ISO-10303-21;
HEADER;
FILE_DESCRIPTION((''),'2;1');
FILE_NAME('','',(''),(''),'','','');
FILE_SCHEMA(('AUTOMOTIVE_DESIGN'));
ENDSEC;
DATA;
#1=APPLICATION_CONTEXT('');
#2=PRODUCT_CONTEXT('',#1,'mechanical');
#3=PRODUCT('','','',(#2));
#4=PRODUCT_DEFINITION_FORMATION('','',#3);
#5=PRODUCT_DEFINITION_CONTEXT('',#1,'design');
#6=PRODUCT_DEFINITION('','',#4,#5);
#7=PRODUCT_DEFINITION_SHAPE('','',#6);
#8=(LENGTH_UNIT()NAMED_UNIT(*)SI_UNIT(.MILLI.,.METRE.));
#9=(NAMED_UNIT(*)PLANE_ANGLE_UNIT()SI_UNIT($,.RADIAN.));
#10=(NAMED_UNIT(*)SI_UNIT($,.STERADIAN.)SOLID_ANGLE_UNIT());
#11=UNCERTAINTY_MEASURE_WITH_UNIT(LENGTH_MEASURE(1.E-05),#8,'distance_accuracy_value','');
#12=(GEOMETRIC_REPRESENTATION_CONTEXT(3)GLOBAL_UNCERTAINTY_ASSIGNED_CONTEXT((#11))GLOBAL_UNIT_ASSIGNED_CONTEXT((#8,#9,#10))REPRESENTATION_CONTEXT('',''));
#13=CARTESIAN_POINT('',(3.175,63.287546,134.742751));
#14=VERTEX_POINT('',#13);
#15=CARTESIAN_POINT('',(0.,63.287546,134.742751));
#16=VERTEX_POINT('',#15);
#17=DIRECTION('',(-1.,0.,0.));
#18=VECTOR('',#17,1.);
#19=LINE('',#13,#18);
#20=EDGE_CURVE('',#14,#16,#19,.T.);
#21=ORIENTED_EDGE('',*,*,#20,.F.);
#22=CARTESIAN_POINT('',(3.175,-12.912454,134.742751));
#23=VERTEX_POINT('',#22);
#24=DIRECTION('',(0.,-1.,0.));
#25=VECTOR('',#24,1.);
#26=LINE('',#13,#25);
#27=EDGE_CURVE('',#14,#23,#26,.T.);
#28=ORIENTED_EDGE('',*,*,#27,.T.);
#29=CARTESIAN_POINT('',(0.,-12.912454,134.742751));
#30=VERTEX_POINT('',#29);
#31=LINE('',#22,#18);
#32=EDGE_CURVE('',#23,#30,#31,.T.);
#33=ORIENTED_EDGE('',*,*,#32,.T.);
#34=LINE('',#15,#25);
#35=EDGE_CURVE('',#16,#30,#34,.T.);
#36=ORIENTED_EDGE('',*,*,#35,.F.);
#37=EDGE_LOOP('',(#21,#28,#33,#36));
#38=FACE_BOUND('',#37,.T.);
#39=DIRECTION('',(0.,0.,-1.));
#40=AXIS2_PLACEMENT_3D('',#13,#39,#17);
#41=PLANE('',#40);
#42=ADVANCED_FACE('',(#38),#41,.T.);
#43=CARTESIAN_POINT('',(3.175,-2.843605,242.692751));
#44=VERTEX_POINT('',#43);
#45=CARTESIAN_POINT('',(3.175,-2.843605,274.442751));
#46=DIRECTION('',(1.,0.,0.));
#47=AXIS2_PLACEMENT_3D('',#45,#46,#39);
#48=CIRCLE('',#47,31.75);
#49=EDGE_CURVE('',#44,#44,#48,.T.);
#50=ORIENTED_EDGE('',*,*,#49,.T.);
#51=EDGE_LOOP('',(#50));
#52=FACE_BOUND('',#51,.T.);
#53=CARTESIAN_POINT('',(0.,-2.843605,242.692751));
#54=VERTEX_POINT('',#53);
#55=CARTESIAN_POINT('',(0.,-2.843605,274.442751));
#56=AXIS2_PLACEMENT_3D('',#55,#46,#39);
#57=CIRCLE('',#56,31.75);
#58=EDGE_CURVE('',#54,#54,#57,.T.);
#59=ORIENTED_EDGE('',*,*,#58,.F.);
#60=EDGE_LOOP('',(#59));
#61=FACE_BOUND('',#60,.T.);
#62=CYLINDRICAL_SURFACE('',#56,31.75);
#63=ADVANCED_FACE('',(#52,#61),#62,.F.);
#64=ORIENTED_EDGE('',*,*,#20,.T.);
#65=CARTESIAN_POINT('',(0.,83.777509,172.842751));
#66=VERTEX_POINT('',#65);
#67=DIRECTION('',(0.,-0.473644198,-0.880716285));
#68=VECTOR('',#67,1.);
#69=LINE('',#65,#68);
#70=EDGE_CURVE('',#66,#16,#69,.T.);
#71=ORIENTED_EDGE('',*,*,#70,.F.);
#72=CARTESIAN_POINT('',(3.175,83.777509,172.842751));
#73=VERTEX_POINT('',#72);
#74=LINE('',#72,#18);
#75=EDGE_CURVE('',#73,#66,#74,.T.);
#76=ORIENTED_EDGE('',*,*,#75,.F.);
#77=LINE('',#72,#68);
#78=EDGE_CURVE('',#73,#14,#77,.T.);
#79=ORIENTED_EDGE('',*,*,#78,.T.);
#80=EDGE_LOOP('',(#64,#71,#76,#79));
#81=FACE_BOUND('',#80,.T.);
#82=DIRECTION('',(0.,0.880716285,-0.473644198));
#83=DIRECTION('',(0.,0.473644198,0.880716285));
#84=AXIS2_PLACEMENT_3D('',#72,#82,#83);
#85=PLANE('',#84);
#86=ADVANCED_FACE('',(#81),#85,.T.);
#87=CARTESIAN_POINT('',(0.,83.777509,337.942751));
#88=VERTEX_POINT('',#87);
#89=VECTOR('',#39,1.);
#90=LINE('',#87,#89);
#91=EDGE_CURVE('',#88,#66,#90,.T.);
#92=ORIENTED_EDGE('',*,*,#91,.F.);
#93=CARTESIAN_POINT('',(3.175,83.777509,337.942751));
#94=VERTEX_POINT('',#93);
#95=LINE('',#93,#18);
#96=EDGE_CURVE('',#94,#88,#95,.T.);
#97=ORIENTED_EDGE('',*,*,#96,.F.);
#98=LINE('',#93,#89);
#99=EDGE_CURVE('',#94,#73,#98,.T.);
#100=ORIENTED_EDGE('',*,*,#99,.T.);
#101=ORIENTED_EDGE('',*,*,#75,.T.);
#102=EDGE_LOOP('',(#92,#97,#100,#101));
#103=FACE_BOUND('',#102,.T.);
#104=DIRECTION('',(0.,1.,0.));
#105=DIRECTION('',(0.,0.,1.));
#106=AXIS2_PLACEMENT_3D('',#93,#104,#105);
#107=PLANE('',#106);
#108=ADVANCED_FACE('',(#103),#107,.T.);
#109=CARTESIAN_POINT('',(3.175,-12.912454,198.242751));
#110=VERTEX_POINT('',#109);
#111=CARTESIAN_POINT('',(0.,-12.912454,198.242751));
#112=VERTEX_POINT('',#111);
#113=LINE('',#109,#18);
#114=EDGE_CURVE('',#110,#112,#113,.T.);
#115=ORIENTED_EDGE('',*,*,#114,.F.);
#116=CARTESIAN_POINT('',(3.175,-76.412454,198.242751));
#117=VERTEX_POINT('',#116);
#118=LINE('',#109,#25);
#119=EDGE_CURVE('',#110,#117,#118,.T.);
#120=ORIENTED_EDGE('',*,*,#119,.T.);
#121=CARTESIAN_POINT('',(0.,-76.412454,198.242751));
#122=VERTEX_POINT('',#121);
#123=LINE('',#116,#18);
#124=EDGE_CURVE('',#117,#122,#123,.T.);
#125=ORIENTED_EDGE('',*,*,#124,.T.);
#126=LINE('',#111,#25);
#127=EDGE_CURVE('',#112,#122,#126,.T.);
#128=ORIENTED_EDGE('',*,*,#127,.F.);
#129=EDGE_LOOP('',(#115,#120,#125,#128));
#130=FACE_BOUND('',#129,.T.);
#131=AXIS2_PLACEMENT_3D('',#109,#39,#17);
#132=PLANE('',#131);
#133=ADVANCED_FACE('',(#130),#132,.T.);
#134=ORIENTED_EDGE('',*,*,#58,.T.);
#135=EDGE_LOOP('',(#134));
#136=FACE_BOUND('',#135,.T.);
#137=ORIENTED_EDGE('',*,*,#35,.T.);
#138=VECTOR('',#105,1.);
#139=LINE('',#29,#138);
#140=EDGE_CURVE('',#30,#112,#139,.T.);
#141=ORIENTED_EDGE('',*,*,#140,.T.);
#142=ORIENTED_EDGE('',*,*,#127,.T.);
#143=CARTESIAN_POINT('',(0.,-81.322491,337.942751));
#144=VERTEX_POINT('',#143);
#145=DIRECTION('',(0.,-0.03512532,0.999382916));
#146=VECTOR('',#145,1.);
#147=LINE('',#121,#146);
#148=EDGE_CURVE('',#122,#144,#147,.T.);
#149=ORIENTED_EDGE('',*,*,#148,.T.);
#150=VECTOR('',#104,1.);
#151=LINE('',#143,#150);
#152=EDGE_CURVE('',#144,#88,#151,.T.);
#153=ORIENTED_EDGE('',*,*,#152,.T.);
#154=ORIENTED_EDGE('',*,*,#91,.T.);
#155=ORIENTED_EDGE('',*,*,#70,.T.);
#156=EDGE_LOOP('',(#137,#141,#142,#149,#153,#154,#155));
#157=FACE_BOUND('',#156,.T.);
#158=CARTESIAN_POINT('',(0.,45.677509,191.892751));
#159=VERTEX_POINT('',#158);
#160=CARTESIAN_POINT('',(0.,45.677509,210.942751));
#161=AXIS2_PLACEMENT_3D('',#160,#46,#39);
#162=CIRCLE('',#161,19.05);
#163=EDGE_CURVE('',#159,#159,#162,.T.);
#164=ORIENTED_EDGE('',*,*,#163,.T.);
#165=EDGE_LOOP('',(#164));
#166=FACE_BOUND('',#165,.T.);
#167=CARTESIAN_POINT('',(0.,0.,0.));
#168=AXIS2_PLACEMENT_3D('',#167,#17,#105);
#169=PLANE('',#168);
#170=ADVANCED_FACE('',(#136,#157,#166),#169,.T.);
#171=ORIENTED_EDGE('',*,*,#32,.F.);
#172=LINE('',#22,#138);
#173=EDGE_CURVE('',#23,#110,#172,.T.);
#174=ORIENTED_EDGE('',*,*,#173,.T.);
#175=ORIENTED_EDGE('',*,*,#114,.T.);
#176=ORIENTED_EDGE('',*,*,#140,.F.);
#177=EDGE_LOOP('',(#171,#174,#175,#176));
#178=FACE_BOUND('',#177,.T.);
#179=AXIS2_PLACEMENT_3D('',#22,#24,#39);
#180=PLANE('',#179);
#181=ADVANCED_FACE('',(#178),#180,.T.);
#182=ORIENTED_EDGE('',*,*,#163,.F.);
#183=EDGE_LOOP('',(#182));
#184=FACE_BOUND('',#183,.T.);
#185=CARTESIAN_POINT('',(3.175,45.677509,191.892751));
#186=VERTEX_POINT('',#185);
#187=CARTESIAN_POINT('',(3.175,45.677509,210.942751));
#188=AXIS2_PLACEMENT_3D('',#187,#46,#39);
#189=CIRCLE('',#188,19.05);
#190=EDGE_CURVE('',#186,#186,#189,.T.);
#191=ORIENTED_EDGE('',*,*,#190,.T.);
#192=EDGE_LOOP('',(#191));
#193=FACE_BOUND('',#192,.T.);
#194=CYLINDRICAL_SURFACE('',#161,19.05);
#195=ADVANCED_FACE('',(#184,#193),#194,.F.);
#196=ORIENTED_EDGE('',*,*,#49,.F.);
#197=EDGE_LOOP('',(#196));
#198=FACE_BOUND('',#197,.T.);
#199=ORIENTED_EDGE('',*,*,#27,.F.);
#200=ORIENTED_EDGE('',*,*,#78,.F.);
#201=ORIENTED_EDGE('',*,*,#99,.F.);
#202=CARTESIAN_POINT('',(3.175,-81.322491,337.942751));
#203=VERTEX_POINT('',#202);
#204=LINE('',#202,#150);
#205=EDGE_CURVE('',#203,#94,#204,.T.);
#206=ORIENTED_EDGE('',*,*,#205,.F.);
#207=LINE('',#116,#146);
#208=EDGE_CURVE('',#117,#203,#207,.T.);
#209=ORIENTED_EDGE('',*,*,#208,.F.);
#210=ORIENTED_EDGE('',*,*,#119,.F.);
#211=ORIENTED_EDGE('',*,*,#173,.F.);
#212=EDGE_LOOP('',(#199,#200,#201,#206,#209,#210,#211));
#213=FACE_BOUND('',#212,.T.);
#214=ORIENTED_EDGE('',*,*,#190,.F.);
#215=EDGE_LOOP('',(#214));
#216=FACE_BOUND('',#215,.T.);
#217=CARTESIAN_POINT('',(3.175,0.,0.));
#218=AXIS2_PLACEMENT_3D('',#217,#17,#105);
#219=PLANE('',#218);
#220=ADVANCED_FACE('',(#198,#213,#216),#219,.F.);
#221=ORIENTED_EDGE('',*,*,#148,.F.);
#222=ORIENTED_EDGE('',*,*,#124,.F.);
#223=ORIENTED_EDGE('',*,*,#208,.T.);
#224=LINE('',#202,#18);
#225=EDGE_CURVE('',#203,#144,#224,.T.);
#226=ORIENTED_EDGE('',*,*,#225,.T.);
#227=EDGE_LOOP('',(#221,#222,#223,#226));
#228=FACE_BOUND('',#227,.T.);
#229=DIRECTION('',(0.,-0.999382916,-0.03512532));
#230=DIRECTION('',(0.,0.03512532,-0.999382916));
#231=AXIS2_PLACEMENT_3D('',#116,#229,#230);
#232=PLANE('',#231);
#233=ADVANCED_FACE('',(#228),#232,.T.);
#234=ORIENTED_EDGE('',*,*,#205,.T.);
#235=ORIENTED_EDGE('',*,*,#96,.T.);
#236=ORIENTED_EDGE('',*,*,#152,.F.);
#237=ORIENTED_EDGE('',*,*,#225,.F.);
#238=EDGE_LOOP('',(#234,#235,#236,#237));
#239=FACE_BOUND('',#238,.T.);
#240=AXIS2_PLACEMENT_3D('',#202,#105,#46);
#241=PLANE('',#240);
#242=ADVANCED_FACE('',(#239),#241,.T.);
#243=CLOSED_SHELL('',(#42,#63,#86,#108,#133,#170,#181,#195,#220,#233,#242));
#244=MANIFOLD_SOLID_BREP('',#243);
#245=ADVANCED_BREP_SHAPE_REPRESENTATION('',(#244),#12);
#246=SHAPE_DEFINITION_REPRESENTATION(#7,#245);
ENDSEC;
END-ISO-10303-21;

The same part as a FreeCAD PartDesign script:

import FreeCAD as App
import Part
import Sketcher
Q = App.Units.Quantity

doc = App.newDocument("Part")
body = doc.addObject("PartDesign::Body", "Body")

sketch1 = body.newObject("Sketcher::SketchObject", "Sketch")
sketch1.AttachmentSupport = (doc.getObject("YZ_Plane"), [""])
sketch1.MapMode = "FlatFace"
sketch1.addGeometry(Part.LineSegment(App.Vector(84, 173, 0), App.Vector(84, 338, 0)), False)
sketch1.addGeometry(Part.LineSegment(App.Vector(84, 338, 0), App.Vector(-81, 338, 0)), False)
sketch1.addGeometry(Part.LineSegment(App.Vector(-81, 338, 0), App.Vector(-76, 198, 0)), False)
sketch1.addGeometry(Part.LineSegment(App.Vector(-76, 198, 0), App.Vector(-13, 198, 0)), False)
sketch1.addGeometry(Part.LineSegment(App.Vector(-13, 198, 0), App.Vector(-13, 135, 0)), False)
sketch1.addGeometry(Part.LineSegment(App.Vector(-13, 135, 0), App.Vector(63, 135, 0)), False)
sketch1.addGeometry(Part.LineSegment(App.Vector(63, 135, 0), App.Vector(84, 173, 0)), False)
sketch1.addConstraint(Sketcher.Constraint("Coincident", 0, 2, 1, 1))
sketch1.addConstraint(Sketcher.Constraint("Coincident", 1, 2, 2, 1))
sketch1.addConstraint(Sketcher.Constraint("Coincident", 2, 2, 3, 1))
sketch1.addConstraint(Sketcher.Constraint("Coincident", 3, 2, 4, 1))
sketch1.addConstraint(Sketcher.Constraint("Coincident", 4, 2, 5, 1))
sketch1.addConstraint(Sketcher.Constraint("Coincident", 5, 2, 6, 1))
sketch1.addConstraint(Sketcher.Constraint("Coincident", 6, 2, 0, 1))
sketch1.addConstraint(Sketcher.Constraint("Vertical", 0))
sketch1.addConstraint(Sketcher.Constraint("Horizontal", 1))
sketch1.addConstraint(Sketcher.Constraint("Horizontal", 3))
sketch1.addConstraint(Sketcher.Constraint("Vertical", 4))
sketch1.addConstraint(Sketcher.Constraint("Horizontal", 5))
sketch1.addConstraint(Sketcher.Constraint("Equal", 1, 0))
sketch1.addConstraint(Sketcher.Constraint("Equal", 3, 4))
sketch1.addConstraint(Sketcher.Constraint("DistanceX", 5, 1, 5, 2, Q("3 in")))
sketch1.addConstraint(Sketcher.Constraint("DistanceX", 1, 2, 1, 1, Q("6.5 in")))
sketch1.addConstraint(Sketcher.Constraint("DistanceX", 3, 1, 3, 2, Q("2.5 in")))
sketch1.addConstraint(Sketcher.Constraint("DistanceY", 4, 2, 1, 2, Q("8 in")))
sketch1.addConstraint(Sketcher.Constraint("Distance", 2, 139.78626))
sketch1.addConstraint(Sketcher.Constraint("DistanceX", -1, 1, 0, 2, 83.777509))
sketch1.addConstraint(Sketcher.Constraint("DistanceY", -1, 1, 0, 2, 337.942751))
pad1 = body.newObject("PartDesign::Pad", "Pad")
pad1.Profile = sketch1
pad1.Length = Q("0.125 in")

sketch2 = body.newObject("Sketcher::SketchObject", "Sketch001")
sketch2.AttachmentSupport = (doc.getObject("YZ_Plane"), [""])
sketch2.MapMode = "FlatFace"
sketch2.AttachmentOffset = App.Placement(App.Vector(0, 0, 0.125 * 25.4), App.Rotation())
sketch2.addGeometry(Part.Circle(App.Vector(-3, 274, 0), App.Vector(0, 0, 1), 32), False)
sketch2.addGeometry(Part.Circle(App.Vector(46, 211, 0), App.Vector(0, 0, 1), 19), False)
sketch2.addConstraint(Sketcher.Constraint("Diameter", 0, Q("2.5 in")))
sketch2.addConstraint(Sketcher.Constraint("Diameter", 1, Q("1.5 in")))
sketch2.addConstraint(Sketcher.Constraint("DistanceY", 1, 3, 0, 3, Q("2.5 in")))
sketch2.addConstraint(Sketcher.Constraint("DistanceY", -1, 1, 0, 3, 274.442751))
sketch2.addConstraint(Sketcher.Constraint("DistanceX", -1, 1, 1, 3, 45.677509))
sketch2.addConstraint(Sketcher.Constraint("DistanceX", 0, 3, -1, 1, 2.843605))
pocket1 = body.newObject("PartDesign::Pocket", "Pocket")
pocket1.Profile = sketch2
pocket1.Type = "ThroughAll"

doc.recompute()
